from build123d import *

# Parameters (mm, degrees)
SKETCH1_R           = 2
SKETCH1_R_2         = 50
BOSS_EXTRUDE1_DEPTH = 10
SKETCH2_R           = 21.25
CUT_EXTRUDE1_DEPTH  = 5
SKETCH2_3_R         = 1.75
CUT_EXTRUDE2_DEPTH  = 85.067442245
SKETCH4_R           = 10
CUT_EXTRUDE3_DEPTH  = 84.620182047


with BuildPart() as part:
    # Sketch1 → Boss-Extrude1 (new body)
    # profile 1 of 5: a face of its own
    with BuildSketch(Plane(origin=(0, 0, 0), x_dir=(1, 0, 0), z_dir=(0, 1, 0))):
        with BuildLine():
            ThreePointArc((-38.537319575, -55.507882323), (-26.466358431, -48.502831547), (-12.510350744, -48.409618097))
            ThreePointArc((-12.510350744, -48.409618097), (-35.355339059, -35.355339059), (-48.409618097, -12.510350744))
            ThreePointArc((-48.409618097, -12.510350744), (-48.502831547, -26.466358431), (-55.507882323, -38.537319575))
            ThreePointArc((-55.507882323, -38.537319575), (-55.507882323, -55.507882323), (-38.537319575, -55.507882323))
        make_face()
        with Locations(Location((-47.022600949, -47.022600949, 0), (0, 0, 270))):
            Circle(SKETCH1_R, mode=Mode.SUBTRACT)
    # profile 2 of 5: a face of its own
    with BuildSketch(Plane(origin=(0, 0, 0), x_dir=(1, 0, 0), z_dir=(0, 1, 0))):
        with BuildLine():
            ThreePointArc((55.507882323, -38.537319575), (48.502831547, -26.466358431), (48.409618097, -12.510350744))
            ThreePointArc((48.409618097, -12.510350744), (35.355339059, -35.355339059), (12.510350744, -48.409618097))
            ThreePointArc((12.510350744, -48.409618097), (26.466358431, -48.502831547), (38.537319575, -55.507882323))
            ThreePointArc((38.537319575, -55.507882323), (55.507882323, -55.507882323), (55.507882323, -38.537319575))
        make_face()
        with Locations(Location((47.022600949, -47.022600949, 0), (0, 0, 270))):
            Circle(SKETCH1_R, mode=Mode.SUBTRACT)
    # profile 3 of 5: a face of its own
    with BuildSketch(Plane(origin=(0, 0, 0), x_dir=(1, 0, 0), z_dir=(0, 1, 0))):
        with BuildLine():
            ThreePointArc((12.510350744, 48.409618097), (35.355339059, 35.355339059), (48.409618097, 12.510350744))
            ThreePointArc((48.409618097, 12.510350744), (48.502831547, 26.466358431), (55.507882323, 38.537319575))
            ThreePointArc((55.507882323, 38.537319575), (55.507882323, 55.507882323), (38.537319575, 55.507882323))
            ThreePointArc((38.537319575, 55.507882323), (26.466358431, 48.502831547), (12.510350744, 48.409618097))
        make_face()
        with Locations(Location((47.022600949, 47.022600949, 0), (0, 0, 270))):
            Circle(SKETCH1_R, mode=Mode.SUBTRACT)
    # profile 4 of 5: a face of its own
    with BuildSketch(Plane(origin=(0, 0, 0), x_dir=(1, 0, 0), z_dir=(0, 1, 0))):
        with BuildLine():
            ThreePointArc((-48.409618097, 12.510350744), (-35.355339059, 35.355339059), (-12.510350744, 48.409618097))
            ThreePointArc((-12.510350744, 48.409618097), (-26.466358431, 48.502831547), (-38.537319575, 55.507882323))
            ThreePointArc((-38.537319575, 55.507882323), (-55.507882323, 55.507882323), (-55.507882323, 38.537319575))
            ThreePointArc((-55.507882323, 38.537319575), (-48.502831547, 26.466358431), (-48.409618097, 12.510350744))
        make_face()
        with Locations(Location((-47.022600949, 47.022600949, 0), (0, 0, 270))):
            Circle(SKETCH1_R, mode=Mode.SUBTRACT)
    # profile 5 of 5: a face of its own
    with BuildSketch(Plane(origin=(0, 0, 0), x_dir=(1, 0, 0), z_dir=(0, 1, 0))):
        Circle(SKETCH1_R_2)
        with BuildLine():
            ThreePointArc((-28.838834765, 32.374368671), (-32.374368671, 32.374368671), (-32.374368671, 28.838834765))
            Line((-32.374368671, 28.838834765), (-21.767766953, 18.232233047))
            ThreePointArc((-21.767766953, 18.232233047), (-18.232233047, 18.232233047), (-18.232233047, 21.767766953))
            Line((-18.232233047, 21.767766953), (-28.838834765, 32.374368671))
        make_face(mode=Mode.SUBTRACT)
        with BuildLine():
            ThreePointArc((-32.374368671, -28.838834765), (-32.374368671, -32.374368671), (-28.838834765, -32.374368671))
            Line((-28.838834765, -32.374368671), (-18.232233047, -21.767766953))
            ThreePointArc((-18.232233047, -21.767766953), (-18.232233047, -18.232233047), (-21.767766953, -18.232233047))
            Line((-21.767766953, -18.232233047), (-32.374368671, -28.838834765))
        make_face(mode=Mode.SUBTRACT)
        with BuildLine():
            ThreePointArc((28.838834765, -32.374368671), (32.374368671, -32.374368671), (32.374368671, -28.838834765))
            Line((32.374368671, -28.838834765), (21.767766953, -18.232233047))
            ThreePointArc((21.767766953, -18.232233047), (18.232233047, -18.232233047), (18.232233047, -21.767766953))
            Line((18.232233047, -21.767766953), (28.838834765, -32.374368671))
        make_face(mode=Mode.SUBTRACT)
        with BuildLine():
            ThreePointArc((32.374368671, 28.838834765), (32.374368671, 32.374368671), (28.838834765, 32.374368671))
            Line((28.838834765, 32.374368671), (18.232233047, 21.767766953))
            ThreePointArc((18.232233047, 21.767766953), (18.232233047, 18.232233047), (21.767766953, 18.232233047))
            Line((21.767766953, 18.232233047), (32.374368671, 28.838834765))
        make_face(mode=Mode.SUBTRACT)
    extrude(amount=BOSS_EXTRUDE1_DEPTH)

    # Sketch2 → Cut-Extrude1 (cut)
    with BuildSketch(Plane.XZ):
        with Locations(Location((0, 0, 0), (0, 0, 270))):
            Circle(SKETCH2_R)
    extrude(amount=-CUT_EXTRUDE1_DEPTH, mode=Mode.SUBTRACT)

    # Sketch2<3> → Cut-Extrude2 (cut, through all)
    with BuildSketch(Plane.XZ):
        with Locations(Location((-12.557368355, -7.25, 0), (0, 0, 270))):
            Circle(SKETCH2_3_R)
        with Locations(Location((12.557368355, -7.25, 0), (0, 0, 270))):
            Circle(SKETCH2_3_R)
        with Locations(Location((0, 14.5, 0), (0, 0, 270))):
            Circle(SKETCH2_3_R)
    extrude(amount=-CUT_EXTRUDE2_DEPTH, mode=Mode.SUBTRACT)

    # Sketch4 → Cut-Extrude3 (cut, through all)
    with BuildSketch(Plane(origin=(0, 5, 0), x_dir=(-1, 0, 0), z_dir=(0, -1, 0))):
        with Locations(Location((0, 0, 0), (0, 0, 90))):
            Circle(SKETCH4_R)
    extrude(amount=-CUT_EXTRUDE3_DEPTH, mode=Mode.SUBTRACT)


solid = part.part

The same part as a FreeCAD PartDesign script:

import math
import FreeCAD as App
import Part
import Sketcher
Q = App.Units.Quantity

doc = App.newDocument("Part")
body = doc.addObject("PartDesign::Body", "Body")

# Sketch on XZ plane
sketch1 = doc.addObject("Sketcher::SketchObject", "Sketch")
body.addObject(sketch1)
sketch1.AttachmentSupport = (doc.XZ_Plane, [""])
sketch1.MapMode = "FlatFace"
sketch1.addGeometry(Part.ArcOfCircle(Part.Circle(App.Vector(-19.3, 74.7, 0), App.Vector(0, 0, 1), 27.2), math.radians(-135), math.radians(-76)), False)
sketch1.addGeometry(Part.ArcOfCircle(Part.Circle(App.Vector(0, 0, 0), App.Vector(0, 0, 1), 50), math.radians(76), math.radians(104)), False)
sketch1.addGeometry(Part.ArcOfCircle(Part.Circle(App.Vector(19.3, 74.7, 0), App.Vector(0, 0, 1), 27.2), math.radians(-104), math.radians(-45)), False)
sketch1.addGeometry(Part.ArcOfCircle(Part.Circle(App.Vector(47, 47, 0), App.Vector(0, 0, 1), 12), math.radians(-45), math.radians(135)), False)
sketch1.addGeometry(Part.ArcOfCircle(Part.Circle(App.Vector(74.7, 19.3, 0), App.Vector(0, 0, 1), 27.2), math.radians(135), math.radians(194)), False)
sketch1.addGeometry(Part.ArcOfCircle(Part.Circle(App.Vector(0, 0, 0), App.Vector(0, 0, 1), 50), math.radians(-14), math.radians(14)), False)
sketch1.addGeometry(Part.ArcOfCircle(Part.Circle(App.Vector(74.7, -19.3, 0), App.Vector(0, 0, 1), 27.2), math.radians(166), math.radians(225)), False)
sketch1.addGeometry(Part.ArcOfCircle(Part.Circle(App.Vector(47, -47, 0), App.Vector(0, 0, 1), 12), math.radians(-135), math.radians(45)), False)
sketch1.addGeometry(Part.ArcOfCircle(Part.Circle(App.Vector(19.3, -74.7, 0), App.Vector(0, 0, 1), 27.2), math.radians(45), math.radians(104)), False)
sketch1.addGeometry(Part.ArcOfCircle(Part.Circle(App.Vector(0, 0, 0), App.Vector(0, 0, 1), 50), math.radians(-104), math.radians(-76)), False)
sketch1.addGeometry(Part.ArcOfCircle(Part.Circle(App.Vector(-19.3, -74.7, 0), App.Vector(0, 0, 1), 27.2), math.radians(76), math.radians(135)), False)
sketch1.addGeometry(Part.ArcOfCircle(Part.Circle(App.Vector(-47, -47, 0), App.Vector(0, 0, 1), 12), math.radians(135), math.radians(315)), False)
sketch1.addGeometry(Part.ArcOfCircle(Part.Circle(App.Vector(-74.7, -19.3, 0), App.Vector(0, 0, 1), 27.2), math.radians(-45), math.radians(14)), False)
sketch1.addGeometry(Part.ArcOfCircle(Part.Circle(App.Vector(0, 0, 0), App.Vector(0, 0, 1), 50), math.radians(166), math.radians(194)), False)
sketch1.addGeometry(Part.ArcOfCircle(Part.Circle(App.Vector(-74.7, 19.3, 0), App.Vector(0, 0, 1), 27.2), math.radians(-14), math.radians(45)), False)
sketch1.addGeometry(Part.ArcOfCircle(Part.Circle(App.Vector(-47, 47, 0), App.Vector(0, 0, 1), 12), math.radians(45), math.radians(225)), False)
sketch1.addGeometry(Part.Circle(App.Vector(-47, 47, 0), App.Vector(0, 0, 1), 2), False)
sketch1.addGeometry(Part.LineSegment(App.Vector(32.4, -28.8, 0), App.Vector(21.8, -18.2, 0)), False)
sketch1.addGeometry(Part.ArcOfCircle(Part.Circle(App.Vector(20, -20, 0), App.Vector(0, 0, 1), 2.5), math.radians(45), math.radians(225)), False)
sketch1.addGeometry(Part.LineSegment(App.Vector(18.2, -21.8, 0), App.Vector(28.8, -32.4, 0)), False)
sketch1.addGeometry(Part.ArcOfCircle(Part.Circle(App.Vector(30.6, -30.6, 0), App.Vector(0, 0, 1), 2.5), math.radians(-135), math.radians(45)), False)
sketch1.addGeometry(Part.ArcOfCircle(Part.Circle(App.Vector(-30.6, 30.6, 0), App.Vector(0, 0, 1), 2.5), math.radians(45), math.radians(225)), False)
sketch1.addGeometry(Part.LineSegment(App.Vector(-32.4, 28.8, 0), App.Vector(-21.8, 18.2, 0)), False)
sketch1.addGeometry(Part.ArcOfCircle(Part.Circle(App.Vector(-20, 20, 0), App.Vector(0, 0, 1), 2.5), math.radians(-135), math.radians(45)), False)
sketch1.addGeometry(Part.LineSegment(App.Vector(-18.2, 21.8, 0), App.Vector(-28.8, 32.4, 0)), False)
sketch1.addGeometry(Part.ArcOfCircle(Part.Circle(App.Vector(30.6, 30.6, 0), App.Vector(0, 0, 1), 2.5), math.radians(-45), math.radians(135)), False)
sketch1.addGeometry(Part.LineSegment(App.Vector(28.8, 32.4, 0), App.Vector(18.2, 21.8, 0)), False)
sketch1.addGeometry(Part.ArcOfCircle(Part.Circle(App.Vector(20, 20, 0), App.Vector(0, 0, 1), 2.5), math.radians(135), math.radians(315)), False)
sketch1.addGeometry(Part.LineSegment(App.Vector(21.8, 18.2, 0), App.Vector(32.4, 28.8, 0)), False)
sketch1.addGeometry(Part.ArcOfCircle(Part.Circle(App.Vector(-30.6, -30.6, 0), App.Vector(0, 0, 1), 2.5), math.radians(135), math.radians(315)), False)
sketch1.addGeometry(Part.LineSegment(App.Vector(-28.8, -32.4, 0), App.Vector(-18.2, -21.8, 0)), False)
sketch1.addGeometry(Part.ArcOfCircle(Part.Circle(App.Vector(-20, -20, 0), App.Vector(0, 0, 1), 2.5), math.radians(-45), math.radians(135)), False)
sketch1.addGeometry(Part.LineSegment(App.Vector(-21.8, -18.2, 0), App.Vector(-32.4, -28.8, 0)), False)
sketch1.addGeometry(Part.Circle(App.Vector(47, -47, 0), App.Vector(0, 0, 1), 2), False)
sketch1.addGeometry(Part.Circle(App.Vector(-47, -47, 0), App.Vector(0, 0, 1), 2), False)
sketch1.addGeometry(Part.Circle(App.Vector(47, 47, 0), App.Vector(0, 0, 1), 2), False)
sketch1.addConstraint(Sketcher.Constraint("Tangent", 0, 2, 1, 2))
sketch1.addConstraint(Sketcher.Constraint("Tangent", 1, 1, 2, 1))
sketch1.addConstraint(Sketcher.Constraint("Tangent", 2, 2, 3, 2))
sketch1.addConstraint(Sketcher.Constraint("Tangent", 3, 1, 4, 1))
sketch1.addConstraint(Sketcher.Constraint("Tangent", 4, 2, 5, 2))
sketch1.addConstraint(Sketcher.Constraint("Tangent", 5, 1, 6, 1))
sketch1.addConstraint(Sketcher.Constraint("Tangent", 6, 2, 7, 2))
sketch1.addConstraint(Sketcher.Constraint("Tangent", 7, 1, 8, 1))
sketch1.addConstraint(Sketcher.Constraint("Tangent", 8, 2, 9, 2))
sketch1.addConstraint(Sketcher.Constraint("Tangent", 9, 1, 10, 1))
sketch1.addConstraint(Sketcher.Constraint("Tangent", 10, 2, 11, 2))
sketch1.addConstraint(Sketcher.Constraint("Tangent", 11, 1, 12, 1))
sketch1.addConstraint(Sketcher.Constraint("Tangent", 12, 2, 13, 2))
sketch1.addConstraint(Sketcher.Constraint("Tangent", 13, 1, 14, 1))
sketch1.addConstraint(Sketcher.Constraint("Tangent", 14, 2, 15, 2))
sketch1.addConstraint(Sketcher.Constraint("Tangent", 15, 1, 0, 1))
sketch1.addConstraint(Sketcher.Constraint("Tangent", 17, 2, 18, 1))
sketch1.addConstraint(Sketcher.Constraint("Tangent", 18, 2, 19, 1))
sketch1.addConstraint(Sketcher.Constraint("Tangent", 19, 2, 20, 1))
sketch1.addConstraint(Sketcher.Constraint("Tangent", 20, 2, 17, 1))
sketch1.addConstraint(Sketcher.Constraint("Tangent", 21, 2, 22, 1))
sketch1.addConstraint(Sketcher.Constraint("Tangent", 22, 2, 23, 1))
sketch1.addConstraint(Sketcher.Constraint("Tangent", 23, 2, 24, 1))
sketch1.addConstraint(Sketcher.Constraint("Tangent", 24, 2, 21, 1))
sketch1.addConstraint(Sketcher.Constraint("Tangent", 25, 2, 26, 1))
sketch1.addConstraint(Sketcher.Constraint("Tangent", 26, 2, 27, 1))
sketch1.addConstraint(Sketcher.Constraint("Tangent", 27, 2, 28, 1))
sketch1.addConstraint(Sketcher.Constraint("Tangent", 28, 2, 25, 1))
sketch1.addConstraint(Sketcher.Constraint("Tangent", 29, 2, 30, 1))
sketch1.addConstraint(Sketcher.Constraint("Tangent", 30, 2, 31, 1))
sketch1.addConstraint(Sketcher.Constraint("Tangent", 31, 2, 32, 1))
sketch1.addConstraint(Sketcher.Constraint("Tangent", 32, 2, 29, 1))
sketch1.addConstraint(Sketcher.Constraint("Coincident", 1, 3, -1, 1))
sketch1.addConstraint(Sketcher.Constraint("Coincident", 5, 3, -1, 1))
sketch1.addConstraint(Sketcher.Constraint("Coincident", 9, 3, -1, 1))
sketch1.addConstraint(Sketcher.Constraint("Coincident", 13, 3, -1, 1))
sketch1.addConstraint(Sketcher.Constraint("Coincident", 16, 3, 15, 3))
sketch1.addConstraint(Sketcher.Constraint("Coincident", 33, 3, 7, 3))
sketch1.addConstraint(Sketcher.Constraint("Coincident", 34, 3, 11, 3))
sketch1.addConstraint(Sketcher.Constraint("Coincident", 35, 3, 3, 3))
sketch1.addConstraint(Sketcher.Constraint("Equal", 0, 2))
sketch1.addConstraint(Sketcher.Constraint("Equal", 2, 4))
sketch1.addConstraint(Sketcher.Constraint("Equal", 1, 5))
sketch1.addConstraint(Sketcher.Constraint("Equal", 4, 6))
sketch1.addConstraint(Sketcher.Constraint("Equal", 3, 7))
sketch1.addConstraint(Sketcher.Constraint("Equal", 6, 8))
sketch1.addConstraint(Sketcher.Constraint("Equal", 5, 9))
sketch1.addConstraint(Sketcher.Constraint("Equal", 8, 10))
sketch1.addConstraint(Sketcher.Constraint("Equal", 7, 11))
sketch1.addConstraint(Sketcher.Constraint("Equal", 10, 12))
sketch1.addConstraint(Sketcher.Constraint("Equal", 9, 13))
sketch1.addConstraint(Sketcher.Constraint("Equal", 12, 14))
sketch1.addConstraint(Sketcher.Constraint("Equal", 11, 15))
sketch1.addConstraint(Sketcher.Constraint("Equal", 18, 20))
sketch1.addConstraint(Sketcher.Constraint("Equal", 20, 21))
sketch1.addConstraint(Sketcher.Constraint("Equal", 21, 23))
sketch1.addConstraint(Sketcher.Constraint("Equal", 23, 25))
sketch1.addConstraint(Sketcher.Constraint("Equal", 25, 27))
sketch1.addConstraint(Sketcher.Constraint("Equal", 27, 29))
sketch1.addConstraint(Sketcher.Constraint("Equal", 29, 31))
sketch1.addConstraint(Sketcher.Constraint("Equal", 16, 33))
sketch1.addConstraint(Sketcher.Constraint("Equal", 33, 34))
sketch1.addConstraint(Sketcher.Constraint("Equal", 34, 35))
sketch1.addConstraint(Sketcher.Constraint("Symmetric", 3, 3, 11, 3, -1, 1))
sketch1.addConstraint(Sketcher.Constraint("Symmetric", 7, 3, 15, 3, -1, 1))
sketch1.addConstraint(Sketcher.Constraint("Symmetric", 20, 3, 21, 3, -1, 1))
sketch1.addConstraint(Sketcher.Constraint("Symmetric", 18, 3, 23, 3, -1, 1))
sketch1.addConstraint(Sketcher.Constraint("Symmetric", 25, 3, 29, 3, -1, 1))
sketch1.addConstraint(Sketcher.Constraint("Symmetric", 27, 3, 31, 3, -1, 1))
sketch1.addConstraint(Sketcher.Constraint("Symmetric", 7, 3, 11, 3, -2))
sketch1.addConstraint(Sketcher.Constraint("Symmetric", 21, 3, 25, 3, -2))
sketch1.addConstraint(Sketcher.Constraint("Symmetric", 23, 3, 27, 3, -2))
sketch1.addConstraint(Sketcher.Constraint("Perpendicular", 24, 26))
sketch1.addConstraint(Sketcher.Constraint("Diameter", 16, Q("4 mm")))
sketch1.addConstraint(Sketcher.Constraint("Radius", 1, Q("50 mm")))
sketch1.addConstraint(Sketcher.Constraint("Radius", 3, Q("12 mm")))
sketch1.addConstraint(Sketcher.Constraint("Radius", 18, Q("2.5 mm")))
sketch1.addConstraint(Sketcher.Constraint("Distance", 17, Q("15 mm")))
sketch1.addConstraint(Sketcher.Constraint("DistanceX", -1, 1, 18, 3, Q("20 mm")))
sketch1.addConstraint(Sketcher.Constraint("DistanceY", 18, 3, -1, 1, Q("20 mm")))
sketch1.addConstraint(Sketcher.Constraint("Radius", 0, Q("27.1875 mm")))
sketch1.addConstraint(Sketcher.Constraint("DistanceX", 20, 3, 7, 3, Q("16.415999 mm")))
sketch1.addConstraint(Sketcher.Constraint("DistanceY", 7, 3, 20, 3, Q("16.415999 mm")))
pad1 = doc.addObject("PartDesign::Pad", "Pad")
body.addObject(pad1)
pad1.Profile = sketch1
pad1.Length = 10
pad1.Reversed = True

# Sketch on XZ plane
sketch2 = doc.addObject("Sketcher::SketchObject", "Sketch001")
body.addObject(sketch2)
sketch2.AttachmentSupport = (doc.XZ_Plane, [""])
sketch2.MapMode = "FlatFace"
sketch2.addGeometry(Part.Circle(App.Vector(0, 0, 0), App.Vector(0, 0, 1), 21), False)
sketch2.addConstraint(Sketcher.Constraint("Coincident", 0, 3, -1, 1))
sketch2.addConstraint(Sketcher.Constraint("Diameter", 0, Q("42.5 mm")))
pocket1 = doc.addObject("PartDesign::Pocket", "Pocket")
body.addObject(pocket1)
pocket1.Profile = sketch2
pocket1.Length = 5

# Sketch on XZ plane
sketch3 = doc.addObject("Sketcher::SketchObject", "Sketch002")
body.addObject(sketch3)
sketch3.AttachmentSupport = (doc.XZ_Plane, [""])
sketch3.MapMode = "FlatFace"
sketch3.addGeometry(Part.Circle(App.Vector(-12.6, -7.2, 0), App.Vector(0, 0, 1), 1.8), False)
sketch3.addGeometry(Part.Circle(App.Vector(12.6, -7.2, 0), App.Vector(0, 0, 1), 1.8), False)
sketch3.addGeometry(Part.Circle(App.Vector(0, 14.5, 0), App.Vector(0, 0, 1), 1.8), False)
sketch3.addConstraint(Sketcher.Constraint("Equal", 0, 1))
sketch3.addConstraint(Sketcher.Constraint("Equal", 1, 2))
sketch3.addConstraint(Sketcher.Constraint("Symmetric", 0, 3, 1, 3, -2))
sketch3.addConstraint(Sketcher.Constraint("PointOnObject", 2, 3, -2))
sketch3.addConstraint(Sketcher.Constraint("Diameter", 0, Q("3.5 mm")))
sketch3.addConstraint(Sketcher.Constraint("DistanceY", -1, 1, 2, 3, Q("14.5 mm")))
sketch3.addConstraint(Sketcher.Constraint("DistanceY", 0, 3, -1, 1, Q("7.25 mm")))
sketch3.addConstraint(Sketcher.Constraint("DistanceX", 0, 3, -1, 1, Q("12.557368 mm")))
pocket2 = doc.addObject("PartDesign::Pocket", "Pocket001")
body.addObject(pocket2)
pocket2.Profile = sketch3
pocket2.Type = "ThroughAll"

# Sketch on XZ plane
sketch4 = doc.addObject("Sketcher::SketchObject", "Sketch003")
body.addObject(sketch4)
sketch4.AttachmentSupport = (doc.XZ_Plane, [""])
sketch4.MapMode = "FlatFace"
sketch4.AttachmentOffset = App.Placement(App.Vector(0, 0, -5), App.Rotation())
sketch4.addGeometry(Part.Circle(App.Vector(0, 0, 0), App.Vector(0, 0, 1), 10), False)
sketch4.addConstraint(Sketcher.Constraint("Coincident", 0, 3, -1, 1))
sketch4.addConstraint(Sketcher.Constraint("Diameter", 0, Q("20 mm")))
pocket3 = doc.addObject("PartDesign::Pocket", "Pocket002")
body.addObject(pocket3)
pocket3.Profile = sketch4
pocket3.Type = "ThroughAll"

doc.recompute()
